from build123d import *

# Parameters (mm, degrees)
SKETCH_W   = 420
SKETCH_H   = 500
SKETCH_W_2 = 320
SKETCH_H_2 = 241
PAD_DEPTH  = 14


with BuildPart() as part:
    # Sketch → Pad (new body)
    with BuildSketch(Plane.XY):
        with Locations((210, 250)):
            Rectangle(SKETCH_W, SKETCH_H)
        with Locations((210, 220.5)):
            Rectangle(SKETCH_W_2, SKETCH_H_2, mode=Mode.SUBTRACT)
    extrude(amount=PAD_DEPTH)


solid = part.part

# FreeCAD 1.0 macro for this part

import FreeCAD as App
import Part
import Sketcher

doc = App.newDocument("Part")
params = doc.addObject("Spreadsheet::Sheet", "Params")
for row, (alias, value) in enumerate([
    ("sketch1_width", "420 mm"),
    ("sketch1_width2", "320 mm"),
    ("sketch1_height", "500 mm"),
    ("sketch1_height2", "241 mm"),
    ("pad1_length", "14 mm"),
], start=1):
    params.set(f"A{row}", alias)
    params.set(f"B{row}", "=" + value)
    params.setAlias(f"B{row}", alias)

body = doc.addObject("PartDesign::Body", "Body")

# Sketch on XY plane
sketch1 = doc.addObject("Sketcher::SketchObject", "Sketch")
body.addObject(sketch1)
sketch1.AttachmentSupport = (doc.XY_Plane, [""])
sketch1.MapMode = "FlatFace"
sketch1.addGeometry(Part.LineSegment(App.Vector(0, 500, 0), App.Vector(0, 0, 0)), False)
sketch1.addGeometry(Part.LineSegment(App.Vector(0, 0, 0), App.Vector(420, 0, 0)), False)
sketch1.addGeometry(Part.LineSegment(App.Vector(420, 0, 0), App.Vector(420, 500, 0)), False)
sketch1.addGeometry(Part.LineSegment(App.Vector(420, 500, 0), App.Vector(0, 500, 0)), False)
sketch1.addGeometry(Part.LineSegment(App.Vector(370, 100, 0), App.Vector(50, 100, 0)), False)
sketch1.addGeometry(Part.LineSegment(App.Vector(50, 100, 0), App.Vector(50, 341, 0)), False)
sketch1.addGeometry(Part.LineSegment(App.Vector(50, 341, 0), App.Vector(370, 341, 0)), False)
sketch1.addGeometry(Part.LineSegment(App.Vector(370, 341, 0), App.Vector(370, 100, 0)), False)
sketch1.addConstraint(Sketcher.Constraint("Coincident", 0, 2, 1, 1))
sketch1.addConstraint(Sketcher.Constraint("Coincident", 1, 2, 2, 1))
sketch1.addConstraint(Sketcher.Constraint("Coincident", 2, 2, 3, 1))
sketch1.addConstraint(Sketcher.Constraint("Coincident", 3, 2, 0, 1))
sketch1.addConstraint(Sketcher.Constraint("Coincident", 4, 2, 5, 1))
sketch1.addConstraint(Sketcher.Constraint("Coincident", 5, 2, 6, 1))
sketch1.addConstraint(Sketcher.Constraint("Coincident", 6, 2, 7, 1))
sketch1.addConstraint(Sketcher.Constraint("Coincident", 7, 2, 4, 1))
sketch1.addConstraint(Sketcher.Constraint("Vertical", 0))
sketch1.addConstraint(Sketcher.Constraint("Horizontal", 1))
sketch1.addConstraint(Sketcher.Constraint("Vertical", 2))
sketch1.addConstraint(Sketcher.Constraint("Horizontal", 3))
sketch1.addConstraint(Sketcher.Constraint("Horizontal", 4))
sketch1.addConstraint(Sketcher.Constraint("Vertical", 5))
sketch1.addConstraint(Sketcher.Constraint("Horizontal", 6))
sketch1.addConstraint(Sketcher.Constraint("Vertical", 7))
sketch1.addConstraint(Sketcher.Constraint("Coincident", 0, 2, -1, 1))
sketch1.addConstraint(Sketcher.Constraint("DistanceX", 1, 1, 1, 2, 420.0))
sketch1.addConstraint(Sketcher.Constraint("DistanceX", 4, 2, 4, 1, 320.0))
sketch1.addConstraint(Sketcher.Constraint("DistanceY", 0, 2, 0, 1, 500.0))
sketch1.addConstraint(Sketcher.Constraint("DistanceY", 5, 1, 5, 2, 241.0))
sketch1.addConstraint(Sketcher.Constraint("DistanceX", -1, 1, 4, 2, 50.0))
sketch1.addConstraint(Sketcher.Constraint("DistanceY", -1, 1, 4, 2, 100.0))
sketch1.setExpression("Constraints[17]", "Params.sketch1_width")
sketch1.setExpression("Constraints[18]", "Params.sketch1_width2")
sketch1.setExpression("Constraints[19]", "Params.sketch1_height")
sketch1.setExpression("Constraints[20]", "Params.sketch1_height2")
pad1 = doc.addObject("PartDesign::Pad", "Pad")
body.addObject(pad1)
pad1.Profile = sketch1
pad1.setExpression("Length", "Params.pad1_length")

doc.recompute()
